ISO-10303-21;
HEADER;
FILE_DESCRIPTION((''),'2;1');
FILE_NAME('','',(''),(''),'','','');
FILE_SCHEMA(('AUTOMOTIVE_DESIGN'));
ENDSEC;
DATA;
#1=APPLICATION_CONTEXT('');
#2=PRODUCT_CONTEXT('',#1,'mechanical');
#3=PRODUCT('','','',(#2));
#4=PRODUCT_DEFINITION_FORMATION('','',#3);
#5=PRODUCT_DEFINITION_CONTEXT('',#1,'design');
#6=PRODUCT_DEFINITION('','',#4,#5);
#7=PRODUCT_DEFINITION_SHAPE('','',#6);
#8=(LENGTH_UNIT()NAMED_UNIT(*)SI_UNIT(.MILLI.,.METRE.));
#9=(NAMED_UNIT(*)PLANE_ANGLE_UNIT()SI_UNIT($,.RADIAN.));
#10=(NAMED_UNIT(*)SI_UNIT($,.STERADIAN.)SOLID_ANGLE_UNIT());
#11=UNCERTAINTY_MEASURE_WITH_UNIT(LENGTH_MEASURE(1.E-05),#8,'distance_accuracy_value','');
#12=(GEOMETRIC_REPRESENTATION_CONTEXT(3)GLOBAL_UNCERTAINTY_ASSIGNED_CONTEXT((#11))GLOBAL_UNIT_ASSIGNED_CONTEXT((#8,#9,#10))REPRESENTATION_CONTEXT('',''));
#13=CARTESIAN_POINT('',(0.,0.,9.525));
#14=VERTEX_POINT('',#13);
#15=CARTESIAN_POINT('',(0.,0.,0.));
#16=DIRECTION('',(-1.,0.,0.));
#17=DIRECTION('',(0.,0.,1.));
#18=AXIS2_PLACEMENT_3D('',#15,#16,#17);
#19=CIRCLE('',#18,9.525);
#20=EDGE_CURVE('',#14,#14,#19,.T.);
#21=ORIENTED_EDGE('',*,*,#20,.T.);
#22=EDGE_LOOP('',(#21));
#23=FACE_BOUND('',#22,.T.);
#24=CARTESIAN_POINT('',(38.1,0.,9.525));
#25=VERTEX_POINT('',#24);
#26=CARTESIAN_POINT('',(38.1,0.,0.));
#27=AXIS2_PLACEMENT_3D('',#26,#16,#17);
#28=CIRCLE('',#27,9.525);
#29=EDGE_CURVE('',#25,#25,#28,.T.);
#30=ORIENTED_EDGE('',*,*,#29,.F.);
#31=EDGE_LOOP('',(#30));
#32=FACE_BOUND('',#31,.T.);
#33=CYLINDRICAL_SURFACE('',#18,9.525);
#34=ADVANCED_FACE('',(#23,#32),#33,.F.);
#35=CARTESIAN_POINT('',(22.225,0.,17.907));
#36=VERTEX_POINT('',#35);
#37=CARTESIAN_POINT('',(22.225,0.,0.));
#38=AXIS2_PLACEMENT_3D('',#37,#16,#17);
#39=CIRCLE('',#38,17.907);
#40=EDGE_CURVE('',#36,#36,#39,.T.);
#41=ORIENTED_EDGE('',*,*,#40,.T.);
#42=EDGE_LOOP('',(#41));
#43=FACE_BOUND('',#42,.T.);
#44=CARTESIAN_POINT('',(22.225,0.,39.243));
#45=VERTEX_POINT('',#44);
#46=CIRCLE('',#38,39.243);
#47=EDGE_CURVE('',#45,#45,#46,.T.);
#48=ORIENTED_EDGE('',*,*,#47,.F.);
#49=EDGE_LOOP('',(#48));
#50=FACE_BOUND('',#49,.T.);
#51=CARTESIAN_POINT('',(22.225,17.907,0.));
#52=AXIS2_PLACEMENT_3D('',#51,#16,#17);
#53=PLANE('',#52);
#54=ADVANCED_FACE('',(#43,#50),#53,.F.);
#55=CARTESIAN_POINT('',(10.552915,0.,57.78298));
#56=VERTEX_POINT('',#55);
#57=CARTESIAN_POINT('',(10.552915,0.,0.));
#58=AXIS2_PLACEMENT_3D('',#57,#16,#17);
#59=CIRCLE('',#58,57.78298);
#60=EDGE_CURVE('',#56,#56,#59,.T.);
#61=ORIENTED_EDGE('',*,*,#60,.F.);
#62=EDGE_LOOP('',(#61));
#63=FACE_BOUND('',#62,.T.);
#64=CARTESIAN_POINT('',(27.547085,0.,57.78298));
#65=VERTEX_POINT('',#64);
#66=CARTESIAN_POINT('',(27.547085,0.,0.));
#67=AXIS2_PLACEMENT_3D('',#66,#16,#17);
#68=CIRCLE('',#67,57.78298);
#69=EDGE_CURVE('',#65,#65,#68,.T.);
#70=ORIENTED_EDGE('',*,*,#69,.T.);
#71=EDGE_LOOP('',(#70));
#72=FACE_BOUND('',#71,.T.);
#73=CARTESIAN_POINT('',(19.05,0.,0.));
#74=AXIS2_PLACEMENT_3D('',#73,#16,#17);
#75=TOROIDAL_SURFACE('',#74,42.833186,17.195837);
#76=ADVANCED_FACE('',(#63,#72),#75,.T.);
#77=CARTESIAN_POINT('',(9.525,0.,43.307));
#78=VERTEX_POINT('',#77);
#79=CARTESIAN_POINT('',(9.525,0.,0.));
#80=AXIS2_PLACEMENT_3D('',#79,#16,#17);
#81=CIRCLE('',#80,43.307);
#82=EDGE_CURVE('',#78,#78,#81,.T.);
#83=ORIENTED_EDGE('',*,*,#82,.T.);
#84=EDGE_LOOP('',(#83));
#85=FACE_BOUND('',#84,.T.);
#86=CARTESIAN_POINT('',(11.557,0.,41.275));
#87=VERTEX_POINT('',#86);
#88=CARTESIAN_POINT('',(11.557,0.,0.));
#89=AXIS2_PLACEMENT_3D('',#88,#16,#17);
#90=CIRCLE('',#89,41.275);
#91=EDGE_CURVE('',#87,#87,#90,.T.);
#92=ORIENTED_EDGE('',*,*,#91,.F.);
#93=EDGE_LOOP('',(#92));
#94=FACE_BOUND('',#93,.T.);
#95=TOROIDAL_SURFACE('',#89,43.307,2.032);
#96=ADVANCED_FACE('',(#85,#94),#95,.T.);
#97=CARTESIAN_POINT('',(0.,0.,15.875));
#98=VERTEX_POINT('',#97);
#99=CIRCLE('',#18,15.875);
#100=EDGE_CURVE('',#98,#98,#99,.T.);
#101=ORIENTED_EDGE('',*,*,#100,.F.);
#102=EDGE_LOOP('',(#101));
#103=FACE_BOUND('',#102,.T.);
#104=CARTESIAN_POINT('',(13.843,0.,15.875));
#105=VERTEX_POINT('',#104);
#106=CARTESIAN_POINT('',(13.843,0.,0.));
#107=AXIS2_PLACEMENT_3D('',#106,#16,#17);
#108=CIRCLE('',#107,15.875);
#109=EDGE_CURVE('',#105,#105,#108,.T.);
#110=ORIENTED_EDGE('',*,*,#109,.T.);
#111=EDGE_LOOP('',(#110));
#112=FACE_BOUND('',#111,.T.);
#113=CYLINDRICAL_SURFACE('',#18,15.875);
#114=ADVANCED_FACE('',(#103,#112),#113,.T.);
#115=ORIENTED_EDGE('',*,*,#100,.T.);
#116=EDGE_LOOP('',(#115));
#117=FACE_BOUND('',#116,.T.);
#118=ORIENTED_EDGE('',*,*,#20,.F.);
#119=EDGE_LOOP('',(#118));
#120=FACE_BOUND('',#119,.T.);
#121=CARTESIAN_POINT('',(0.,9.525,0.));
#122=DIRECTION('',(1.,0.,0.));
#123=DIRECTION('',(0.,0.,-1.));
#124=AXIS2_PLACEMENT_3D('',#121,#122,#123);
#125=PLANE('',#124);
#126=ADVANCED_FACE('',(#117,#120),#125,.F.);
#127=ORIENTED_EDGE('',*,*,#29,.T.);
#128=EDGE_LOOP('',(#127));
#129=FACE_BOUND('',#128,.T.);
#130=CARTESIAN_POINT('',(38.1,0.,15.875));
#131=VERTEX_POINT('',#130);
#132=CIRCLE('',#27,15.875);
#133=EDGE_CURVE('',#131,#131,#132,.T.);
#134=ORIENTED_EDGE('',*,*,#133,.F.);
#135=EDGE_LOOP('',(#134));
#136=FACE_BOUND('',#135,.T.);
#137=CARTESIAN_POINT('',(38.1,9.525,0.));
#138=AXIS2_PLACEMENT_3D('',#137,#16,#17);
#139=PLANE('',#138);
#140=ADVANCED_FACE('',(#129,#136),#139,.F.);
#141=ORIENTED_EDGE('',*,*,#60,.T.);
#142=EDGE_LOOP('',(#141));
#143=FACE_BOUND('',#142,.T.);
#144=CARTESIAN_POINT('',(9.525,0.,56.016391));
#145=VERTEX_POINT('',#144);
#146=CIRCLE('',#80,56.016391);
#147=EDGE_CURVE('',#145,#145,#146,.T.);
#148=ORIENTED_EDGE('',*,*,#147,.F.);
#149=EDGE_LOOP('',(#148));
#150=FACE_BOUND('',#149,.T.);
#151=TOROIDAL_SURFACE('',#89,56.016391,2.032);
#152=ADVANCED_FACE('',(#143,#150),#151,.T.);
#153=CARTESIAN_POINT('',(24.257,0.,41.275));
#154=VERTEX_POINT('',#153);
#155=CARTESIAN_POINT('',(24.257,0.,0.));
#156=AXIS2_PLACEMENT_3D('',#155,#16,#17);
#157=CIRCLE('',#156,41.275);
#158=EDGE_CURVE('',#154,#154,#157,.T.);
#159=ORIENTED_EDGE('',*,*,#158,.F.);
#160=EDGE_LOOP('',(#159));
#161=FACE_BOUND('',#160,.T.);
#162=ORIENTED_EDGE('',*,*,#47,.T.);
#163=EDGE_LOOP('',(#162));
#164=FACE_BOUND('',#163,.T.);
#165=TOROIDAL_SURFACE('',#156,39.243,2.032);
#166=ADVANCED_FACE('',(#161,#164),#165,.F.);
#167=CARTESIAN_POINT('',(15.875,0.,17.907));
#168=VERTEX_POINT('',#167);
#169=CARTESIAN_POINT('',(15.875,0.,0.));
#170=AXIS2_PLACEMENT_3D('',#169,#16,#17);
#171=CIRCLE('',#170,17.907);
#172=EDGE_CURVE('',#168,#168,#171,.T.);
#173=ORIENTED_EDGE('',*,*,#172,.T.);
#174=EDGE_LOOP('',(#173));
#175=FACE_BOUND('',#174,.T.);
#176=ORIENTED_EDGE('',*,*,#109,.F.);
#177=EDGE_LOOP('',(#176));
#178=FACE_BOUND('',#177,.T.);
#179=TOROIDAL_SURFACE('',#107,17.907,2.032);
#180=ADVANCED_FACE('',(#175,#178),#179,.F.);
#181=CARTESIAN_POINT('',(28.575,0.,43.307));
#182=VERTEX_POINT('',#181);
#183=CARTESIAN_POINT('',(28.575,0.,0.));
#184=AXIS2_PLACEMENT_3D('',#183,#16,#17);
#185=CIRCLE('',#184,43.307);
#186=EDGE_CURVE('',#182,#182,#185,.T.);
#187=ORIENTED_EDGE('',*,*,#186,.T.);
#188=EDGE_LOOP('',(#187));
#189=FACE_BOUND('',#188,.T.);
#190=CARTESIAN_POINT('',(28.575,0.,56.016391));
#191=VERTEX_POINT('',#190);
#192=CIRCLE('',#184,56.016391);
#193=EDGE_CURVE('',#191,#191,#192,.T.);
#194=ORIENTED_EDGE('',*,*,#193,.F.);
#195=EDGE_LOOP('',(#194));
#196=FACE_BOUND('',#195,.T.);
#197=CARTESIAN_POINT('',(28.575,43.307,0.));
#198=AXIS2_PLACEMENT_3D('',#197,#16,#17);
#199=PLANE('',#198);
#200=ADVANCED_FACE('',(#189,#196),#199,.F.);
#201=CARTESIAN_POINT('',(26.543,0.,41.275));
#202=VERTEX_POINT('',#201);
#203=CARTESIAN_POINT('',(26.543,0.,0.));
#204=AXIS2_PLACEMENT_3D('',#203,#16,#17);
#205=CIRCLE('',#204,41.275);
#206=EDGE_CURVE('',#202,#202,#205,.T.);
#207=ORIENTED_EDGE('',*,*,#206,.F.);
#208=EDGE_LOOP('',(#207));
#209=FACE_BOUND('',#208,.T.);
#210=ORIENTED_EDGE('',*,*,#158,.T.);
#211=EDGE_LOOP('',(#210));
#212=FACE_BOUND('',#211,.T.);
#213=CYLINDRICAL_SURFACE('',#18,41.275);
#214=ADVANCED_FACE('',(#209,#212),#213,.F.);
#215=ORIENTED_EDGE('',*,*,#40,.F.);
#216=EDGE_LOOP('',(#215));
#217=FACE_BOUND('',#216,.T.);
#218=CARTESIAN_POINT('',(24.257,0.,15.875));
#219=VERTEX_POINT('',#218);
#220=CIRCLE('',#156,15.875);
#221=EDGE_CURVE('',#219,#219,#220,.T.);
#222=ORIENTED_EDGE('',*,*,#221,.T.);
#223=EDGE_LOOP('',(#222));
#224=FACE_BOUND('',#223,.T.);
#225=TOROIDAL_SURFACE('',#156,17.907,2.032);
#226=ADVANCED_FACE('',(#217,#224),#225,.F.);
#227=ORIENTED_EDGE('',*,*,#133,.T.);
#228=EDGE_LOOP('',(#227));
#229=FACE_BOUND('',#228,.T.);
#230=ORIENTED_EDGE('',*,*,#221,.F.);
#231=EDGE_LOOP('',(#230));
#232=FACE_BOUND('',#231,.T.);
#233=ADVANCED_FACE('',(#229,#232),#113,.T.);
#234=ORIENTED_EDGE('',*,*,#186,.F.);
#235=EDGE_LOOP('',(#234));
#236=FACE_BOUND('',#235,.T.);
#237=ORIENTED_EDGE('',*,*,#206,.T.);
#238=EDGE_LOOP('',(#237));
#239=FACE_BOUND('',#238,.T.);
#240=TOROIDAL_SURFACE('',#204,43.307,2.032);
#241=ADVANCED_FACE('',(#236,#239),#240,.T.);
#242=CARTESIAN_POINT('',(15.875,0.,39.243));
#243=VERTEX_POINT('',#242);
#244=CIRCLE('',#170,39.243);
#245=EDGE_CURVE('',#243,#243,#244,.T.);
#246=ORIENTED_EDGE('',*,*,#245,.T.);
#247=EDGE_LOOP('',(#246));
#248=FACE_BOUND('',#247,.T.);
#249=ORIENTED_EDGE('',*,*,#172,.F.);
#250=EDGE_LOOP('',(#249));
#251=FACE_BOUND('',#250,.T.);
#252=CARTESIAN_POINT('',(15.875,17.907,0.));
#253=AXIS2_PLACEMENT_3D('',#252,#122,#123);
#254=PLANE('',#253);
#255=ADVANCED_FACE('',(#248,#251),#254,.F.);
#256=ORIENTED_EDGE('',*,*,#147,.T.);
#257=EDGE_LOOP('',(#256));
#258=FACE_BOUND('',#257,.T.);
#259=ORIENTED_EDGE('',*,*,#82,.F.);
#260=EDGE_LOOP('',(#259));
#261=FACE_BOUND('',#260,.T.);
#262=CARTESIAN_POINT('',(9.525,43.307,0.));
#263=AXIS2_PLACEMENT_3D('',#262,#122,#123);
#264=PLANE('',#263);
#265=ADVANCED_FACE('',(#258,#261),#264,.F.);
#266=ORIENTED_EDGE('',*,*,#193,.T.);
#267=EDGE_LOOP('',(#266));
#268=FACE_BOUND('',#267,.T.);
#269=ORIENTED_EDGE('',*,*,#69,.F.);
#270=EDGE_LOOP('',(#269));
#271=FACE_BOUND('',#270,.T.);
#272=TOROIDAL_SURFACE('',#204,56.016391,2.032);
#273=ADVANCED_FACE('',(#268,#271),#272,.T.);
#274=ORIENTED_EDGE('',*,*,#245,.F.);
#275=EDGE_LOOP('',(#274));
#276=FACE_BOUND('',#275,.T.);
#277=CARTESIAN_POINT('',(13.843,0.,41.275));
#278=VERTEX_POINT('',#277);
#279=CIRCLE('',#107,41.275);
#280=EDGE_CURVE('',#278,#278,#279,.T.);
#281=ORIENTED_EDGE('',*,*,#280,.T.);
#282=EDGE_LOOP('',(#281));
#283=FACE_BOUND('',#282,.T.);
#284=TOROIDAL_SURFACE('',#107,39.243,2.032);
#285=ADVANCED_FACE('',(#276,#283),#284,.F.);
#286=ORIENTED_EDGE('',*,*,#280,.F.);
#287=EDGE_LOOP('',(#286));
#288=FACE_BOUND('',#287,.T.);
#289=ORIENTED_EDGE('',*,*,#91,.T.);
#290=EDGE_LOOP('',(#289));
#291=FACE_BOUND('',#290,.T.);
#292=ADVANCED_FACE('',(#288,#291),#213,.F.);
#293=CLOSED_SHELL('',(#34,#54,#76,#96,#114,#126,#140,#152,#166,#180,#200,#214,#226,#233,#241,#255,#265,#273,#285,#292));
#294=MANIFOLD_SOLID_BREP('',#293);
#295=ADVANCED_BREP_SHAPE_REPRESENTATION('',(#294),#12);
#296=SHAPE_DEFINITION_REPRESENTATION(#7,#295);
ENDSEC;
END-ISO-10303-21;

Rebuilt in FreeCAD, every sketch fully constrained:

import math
import FreeCAD as App
import Part
import Sketcher
from FreeCAD import Vector
Q = App.Units.Quantity

doc = App.newDocument("Part")
body = doc.addObject("PartDesign::Body", "Body")

sketch1 = body.newObject("Sketcher::SketchObject", "Sketch")
sketch1.AttachmentSupport = (doc.getObject("XY_Plane"), [""])
sketch1.MapMode = "FlatFace"
sketch1.addGeometry([
    Part.LineSegment(Vector(0, 9.525, 0), Vector(38.1, 9.525, 0)),
    Part.LineSegment(Vector(38.1, 9.525, 0), Vector(38.1, 15.875, 0)),
    Part.LineSegment(Vector(38.1, 15.875, 0), Vector(24.257, 15.875, 0)),
    Part.ArcOfCircle(Part.Circle(Vector(24.257, 17.907, 0), Vector(0, 0, 1), 2.032), math.radians(-180), math.radians(-90)),
    Part.LineSegment(Vector(22.225, 17.907, 0), Vector(22.225, 39.243, 0)),
    Part.ArcOfCircle(Part.Circle(Vector(24.257, 39.243, 0), Vector(0, 0, 1), 2.032), math.radians(90), math.radians(180)),
    Part.LineSegment(Vector(24.257, 41.275, 0), Vector(26.543, 41.275, 0)),
    Part.ArcOfCircle(Part.Circle(Vector(26.543, 43.307, 0), Vector(0, 0, 1), 2.032), math.radians(-90), math.radians(0)),
    Part.LineSegment(Vector(28.575, 43.307, 0), Vector(28.575, 56.016391, 0)),
    Part.ArcOfCircle(Part.Circle(Vector(26.543, 56.016391, 0), Vector(0, 0, 1), 2.032), math.radians(0), math.radians(60.387196)),
    Part.ArcOfCircle(Part.Circle(Vector(19.05, 42.833186, 0), Vector(0, 0, 1), 17.195837), math.radians(60.387196), math.radians(119.612804)),
    Part.ArcOfCircle(Part.Circle(Vector(11.557, 56.016391, 0), Vector(0, 0, 1), 2.032), math.radians(119.612804), math.radians(180)),
    Part.LineSegment(Vector(9.525, 56.016391, 0), Vector(9.525, 43.307, 0)),
    Part.ArcOfCircle(Part.Circle(Vector(11.557, 43.307, 0), Vector(0, 0, 1), 2.032), math.radians(-180), math.radians(-90)),
    Part.LineSegment(Vector(11.557, 41.275, 0), Vector(13.843, 41.275, 0)),
    Part.ArcOfCircle(Part.Circle(Vector(13.843, 39.243, 0), Vector(0, 0, 1), 2.032), math.radians(0), math.radians(90)),
    Part.LineSegment(Vector(15.875, 39.243, 0), Vector(15.875, 17.907, 0)),
    Part.ArcOfCircle(Part.Circle(Vector(13.843, 17.907, 0), Vector(0, 0, 1), 2.032), math.radians(-90), math.radians(0)),
    Part.LineSegment(Vector(13.843, 15.875, 0), Vector(0, 15.875, 0)),
    Part.LineSegment(Vector(0, 15.875, 0), Vector(0, 9.525, 0)),
], False)
sketch1.addConstraint([
    Sketcher.Constraint("Coincident", 0, 2, 1, 1),
    Sketcher.Constraint("Coincident", 1, 2, 2, 1),
    Sketcher.Constraint("Tangent", 2, 2, 3, 2),
    Sketcher.Constraint("Tangent", 3, 1, 4, 1),
    Sketcher.Constraint("Tangent", 4, 2, 5, 2),
    Sketcher.Constraint("Tangent", 5, 1, 6, 1),
    Sketcher.Constraint("Tangent", 6, 2, 7, 1),
    Sketcher.Constraint("Tangent", 7, 2, 8, 1),
    Sketcher.Constraint("Tangent", 8, 2, 9, 1),
    Sketcher.Constraint("Tangent", 9, 2, 10, 1),
    Sketcher.Constraint("Tangent", 10, 2, 11, 1),
    Sketcher.Constraint("Tangent", 11, 2, 12, 1),
    Sketcher.Constraint("Tangent", 12, 2, 13, 1),
    Sketcher.Constraint("Tangent", 13, 2, 14, 1),
    Sketcher.Constraint("Tangent", 14, 2, 15, 2),
    Sketcher.Constraint("Tangent", 15, 1, 16, 1),
    Sketcher.Constraint("Tangent", 16, 2, 17, 2),
    Sketcher.Constraint("Tangent", 17, 1, 18, 1),
    Sketcher.Constraint("Coincident", 18, 2, 19, 1),
    Sketcher.Constraint("Coincident", 19, 2, 0, 1),
    Sketcher.Constraint("Horizontal", 0),
    Sketcher.Constraint("Vertical", 1),
    Sketcher.Constraint("Horizontal", 2),
    Sketcher.Constraint("Vertical", 4),
    Sketcher.Constraint("Horizontal", 6),
    Sketcher.Constraint("Vertical", 8),
    Sketcher.Constraint("Vertical", 12),
    Sketcher.Constraint("Horizontal", 14),
    Sketcher.Constraint("Vertical", 16),
    Sketcher.Constraint("Horizontal", 18),
    Sketcher.Constraint("Vertical", 19),
    Sketcher.Constraint("Equal", 3, 5),
    Sketcher.Constraint("Equal", 5, 7),
    Sketcher.Constraint("Equal", 7, 9),
    Sketcher.Constraint("Equal", 9, 11),
    Sketcher.Constraint("Equal", 11, 13),
    Sketcher.Constraint("Equal", 13, 15),
    Sketcher.Constraint("Equal", 15, 17),
    Sketcher.Constraint("PointOnObject", 18, 2, -2),
    Sketcher.Constraint("Horizontal", 9, 3, 11, 3),
    Sketcher.Constraint("Horizontal", 7, 3, 13, 3),
    Sketcher.Constraint("Horizontal", 3, 3, 17, 3),
    Sketcher.Constraint("Equal", 6, 14),
    Sketcher.Constraint("Equal", 2, 18),
    Sketcher.Constraint("Radius", 3, Q("0.08 in")),
    Sketcher.Constraint("DistanceX", 0, 1, 0, 2, Q("1.5 in")),
    Sketcher.Constraint("DistanceY", 3, 3, 7, 3, Q("1 in")),
    Sketcher.Constraint("DistanceX", 6, 1, 6, 2, Q("0.09 in")),
    Sketcher.Constraint("DistanceY", 1, 1, 1, 2, Q("0.25 in")),
    Sketcher.Constraint("DistanceX", 11, 3, 5, 3, Q("0.5 in")),
    Sketcher.Constraint("DistanceY", -1, 1, 3, 3, Q("0.705 in")),
    Sketcher.Constraint("Radius", 10, 17.195837),
    Sketcher.Constraint("DistanceY", 8, 1, 8, 2, 12.709391),
])
revolution = body.newObject("PartDesign::Revolution", "Revolution")
revolution.Profile = sketch1
revolution.ReferenceAxis = (sketch1, ["H_Axis"])
revolution.Angle = 360

doc.recompute()
